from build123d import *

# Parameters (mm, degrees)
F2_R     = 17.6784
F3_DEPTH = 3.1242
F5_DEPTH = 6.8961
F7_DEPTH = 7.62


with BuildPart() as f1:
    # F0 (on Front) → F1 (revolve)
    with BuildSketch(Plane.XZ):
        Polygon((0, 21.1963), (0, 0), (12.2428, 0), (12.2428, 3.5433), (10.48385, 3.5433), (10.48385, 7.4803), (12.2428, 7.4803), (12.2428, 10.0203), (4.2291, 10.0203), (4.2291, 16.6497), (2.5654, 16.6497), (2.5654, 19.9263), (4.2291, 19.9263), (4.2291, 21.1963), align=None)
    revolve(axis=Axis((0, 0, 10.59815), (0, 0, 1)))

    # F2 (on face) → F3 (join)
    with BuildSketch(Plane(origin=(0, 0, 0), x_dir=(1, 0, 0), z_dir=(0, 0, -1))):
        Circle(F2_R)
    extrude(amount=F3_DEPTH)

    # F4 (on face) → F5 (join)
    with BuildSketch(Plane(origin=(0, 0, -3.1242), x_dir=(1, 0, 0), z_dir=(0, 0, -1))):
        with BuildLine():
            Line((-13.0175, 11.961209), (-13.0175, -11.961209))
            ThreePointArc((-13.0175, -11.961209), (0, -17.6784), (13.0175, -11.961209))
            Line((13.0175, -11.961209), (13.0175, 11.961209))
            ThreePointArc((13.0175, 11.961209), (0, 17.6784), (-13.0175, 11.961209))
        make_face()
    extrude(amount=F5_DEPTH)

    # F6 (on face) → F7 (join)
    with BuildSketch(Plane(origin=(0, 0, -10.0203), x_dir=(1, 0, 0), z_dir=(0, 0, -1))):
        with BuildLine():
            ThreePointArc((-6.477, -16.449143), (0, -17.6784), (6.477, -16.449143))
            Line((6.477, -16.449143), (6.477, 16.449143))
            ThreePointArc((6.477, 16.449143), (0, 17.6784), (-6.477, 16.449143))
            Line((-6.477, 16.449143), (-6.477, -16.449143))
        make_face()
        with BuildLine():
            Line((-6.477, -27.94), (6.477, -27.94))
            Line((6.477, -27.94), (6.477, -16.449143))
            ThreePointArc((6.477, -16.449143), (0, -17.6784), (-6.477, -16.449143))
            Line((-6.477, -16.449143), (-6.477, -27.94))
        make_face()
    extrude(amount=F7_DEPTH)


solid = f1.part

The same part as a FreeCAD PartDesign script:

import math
import FreeCAD as App
import Part
import Sketcher

V = App.Vector
Q = App.Units.Quantity


def add_polygon(sketch, points):
    """Adds a closed chain of lines whose ends are joined by coincident constraints."""
    first, n = sketch.GeometryCount, len(points)
    for a, b in zip(points, points[1:] + points[:1]):
        sketch.addGeometry(Part.LineSegment(App.Vector(*a, 0), App.Vector(*b, 0)), False)
    for i in range(n):
        sketch.addConstraint(Sketcher.Constraint("Coincident", first + i, 2, first + (i + 1) % n, 1))

doc = App.newDocument("Part")
body = doc.addObject("PartDesign::Body", "Body")

sketch1 = doc.addObject("Sketcher::SketchObject", "Sketch")
body.addObject(sketch1)
sketch1.AttachmentSupport = (doc.XZ_Plane, [""])
sketch1.MapMode = "FlatFace"
add_polygon(sketch1, [(0, 21.1963), (0, 0), (12.2428, 0), (12.2428, 3.5433), (10.48385, 3.5433), (10.48385, 7.4803), (12.2428, 7.4803), (12.2428, 10.0203), (4.2291, 10.0203), (4.2291, 16.6497), (2.5654, 16.6497), (2.5654, 19.9263), (4.2291, 19.9263), (4.2291, 21.1963)])
sketch1.addConstraint([
    Sketcher.Constraint("Vertical", 0),
    Sketcher.Constraint("Horizontal", 1),
    Sketcher.Constraint("Vertical", 2),
    Sketcher.Constraint("Horizontal", 3),
    Sketcher.Constraint("Vertical", 4),
    Sketcher.Constraint("Horizontal", 5),
    Sketcher.Constraint("Vertical", 6),
    Sketcher.Constraint("Horizontal", 7),
    Sketcher.Constraint("Vertical", 8),
    Sketcher.Constraint("Horizontal", 9),
    Sketcher.Constraint("Vertical", 10),
    Sketcher.Constraint("Horizontal", 11),
    Sketcher.Constraint("Vertical", 12),
    Sketcher.Constraint("Horizontal", 13),
    Sketcher.Constraint("Coincident", 0, 2, -1, 1),
    Sketcher.Constraint("Vertical", 2, 2, 5, 2),
    Sketcher.Constraint("Vertical", 8, 2, 11, 2),
    Sketcher.Constraint("DistanceY", 6, 1, 6, 2, Q("0.1 in")),
    Sketcher.Constraint("DistanceY", 12, 1, 12, 2, Q("0.05 in")),
    Sketcher.Constraint("DistanceX", 1, 1, 1, 2, Q("0.482 in")),
    Sketcher.Constraint("DistanceY", 4, 1, 4, 2, Q("0.155 in")),
    Sketcher.Constraint("DistanceY", 8, 1, 8, 2, Q("0.261 in")),
    Sketcher.Constraint("DistanceY", 10, 1, 10, 2, Q("0.129 in")),
    Sketcher.Constraint("DistanceX", 7, 2, 7, 1, Q("0.3155 in")),
    Sketcher.Constraint("DistanceX", 9, 2, 9, 1, Q("0.0655 in")),
    Sketcher.Constraint("DistanceY", 0, 2, 0, 1, Q("0.8345 in")),
    Sketcher.Constraint("DistanceX", 3, 2, 3, 1, 1.75895),
])
revolution = doc.addObject("PartDesign::Revolution", "Revolution")
body.addObject(revolution)
revolution.Profile = sketch1
revolution.ReferenceAxis = (sketch1, ["V_Axis"])
revolution.Angle = 360

sketch2 = doc.addObject("Sketcher::SketchObject", "Sketch001")
body.addObject(sketch2)
sketch2.AttachmentSupport = (doc.XY_Plane, [""])
sketch2.MapMode = "FlatFace"
sketch2.addGeometry(Part.Circle(V(0, 0, 0), V(0, 0, 1), 17.6784), False)
sketch2.addConstraint([
    Sketcher.Constraint("Coincident", 0, 3, -1, 1),
    Sketcher.Constraint("Diameter", 0, Q("1.392 in")),
])
pad1 = doc.addObject("PartDesign::Pad", "Pad")
body.addObject(pad1)
pad1.Profile = sketch2
pad1.Length = Q("0.123 in")
pad1.Reversed = True

sketch3 = doc.addObject("Sketcher::SketchObject", "Sketch002")
body.addObject(sketch3)
sketch3.AttachmentSupport = (doc.XY_Plane, [""])
sketch3.MapMode = "FlatFace"
sketch3.AttachmentOffset = App.Placement(V(0, 0, -0.123 * 25.4), App.Rotation())
sketch3.addGeometry([
    Part.LineSegment(V(-13.0175, -11.961209, 0), V(-13.0175, 11.961209, 0)),
    Part.ArcOfCircle(Part.Circle(V(0, 0, 0), V(0, 0, 1), 17.6784), math.radians(42.578539), math.radians(137.421461)),
    Part.LineSegment(V(13.0175, 11.961209, 0), V(13.0175, -11.961209, 0)),
    Part.ArcOfCircle(Part.Circle(V(0, 0, 0), V(0, 0, 1), 17.6784), math.radians(-137.421461), math.radians(-42.578539)),
], False)
sketch3.addConstraint([
    Sketcher.Constraint("Coincident", 0, 2, 1, 2),
    Sketcher.Constraint("Coincident", 1, 1, 2, 1),
    Sketcher.Constraint("Coincident", 2, 2, 3, 2),
    Sketcher.Constraint("Coincident", 3, 1, 0, 1),
    Sketcher.Constraint("Vertical", 0),
    Sketcher.Constraint("Vertical", 2),
    Sketcher.Constraint("Coincident", 1, 3, -1, 1),
    Sketcher.Constraint("Coincident", 3, 3, -1, 1),
    Sketcher.Constraint("Equal", 1, 3),
    Sketcher.Constraint("Horizontal", 0, 2, 1, 1),
    Sketcher.Constraint("Radius", 1, Q("0.696 in")),
    Sketcher.Constraint("DistanceX", 0, 2, 1, 1, Q("1.025 in")),
])
pad2 = doc.addObject("PartDesign::Pad", "Pad001")
body.addObject(pad2)
pad2.Profile = sketch3
pad2.Length = Q("0.2715 in")
pad2.Reversed = True

sketch4 = doc.addObject("Sketcher::SketchObject", "Sketch003")
body.addObject(sketch4)
sketch4.AttachmentSupport = (doc.XY_Plane, [""])
sketch4.MapMode = "FlatFace"
sketch4.AttachmentOffset = App.Placement(V(0, 0, -0.3945 * 25.4), App.Rotation())
sketch4.addGeometry([
    Part.ArcOfCircle(Part.Circle(V(0, 0.000003, 0), V(0, 0, 1), 17.678403), math.radians(-111.492488), math.radians(-68.507512)),
    Part.LineSegment(V(-6.477, -16.449143, 0), V(-6.477, 27.94, 0)),
    Part.LineSegment(V(-6.477, 27.94, 0), V(6.477, 27.94, 0)),
    Part.LineSegment(V(6.477, 27.94, 0), V(6.477, -16.449143, 0)),
], False)
sketch4.addConstraint([
    Sketcher.Constraint("Coincident", 0, 1, 1, 1),
    Sketcher.Constraint("Coincident", 1, 2, 2, 1),
    Sketcher.Constraint("Coincident", 2, 2, 3, 1),
    Sketcher.Constraint("Coincident", 3, 2, 0, 2),
    Sketcher.Constraint("Vertical", 1),
    Sketcher.Constraint("Horizontal", 2),
    Sketcher.Constraint("Vertical", 3),
    Sketcher.Constraint("Coincident", 0, 3, -1, 1),
    Sketcher.Constraint("Horizontal", 0, 1, 3, 2),
    Sketcher.Constraint("Radius", 0, Q("0.6960001 in")),
    Sketcher.Constraint("DistanceX", 2, 1, 2, 2, Q("0.51 in")),
    Sketcher.Constraint("DistanceY", -1, 1, 1, 2, Q("1.1 in")),
])
pad3 = doc.addObject("PartDesign::Pad", "Pad002")
body.addObject(pad3)
pad3.Profile = sketch4
pad3.Length = Q("0.3 in")
pad3.Reversed = True

doc.recompute()
